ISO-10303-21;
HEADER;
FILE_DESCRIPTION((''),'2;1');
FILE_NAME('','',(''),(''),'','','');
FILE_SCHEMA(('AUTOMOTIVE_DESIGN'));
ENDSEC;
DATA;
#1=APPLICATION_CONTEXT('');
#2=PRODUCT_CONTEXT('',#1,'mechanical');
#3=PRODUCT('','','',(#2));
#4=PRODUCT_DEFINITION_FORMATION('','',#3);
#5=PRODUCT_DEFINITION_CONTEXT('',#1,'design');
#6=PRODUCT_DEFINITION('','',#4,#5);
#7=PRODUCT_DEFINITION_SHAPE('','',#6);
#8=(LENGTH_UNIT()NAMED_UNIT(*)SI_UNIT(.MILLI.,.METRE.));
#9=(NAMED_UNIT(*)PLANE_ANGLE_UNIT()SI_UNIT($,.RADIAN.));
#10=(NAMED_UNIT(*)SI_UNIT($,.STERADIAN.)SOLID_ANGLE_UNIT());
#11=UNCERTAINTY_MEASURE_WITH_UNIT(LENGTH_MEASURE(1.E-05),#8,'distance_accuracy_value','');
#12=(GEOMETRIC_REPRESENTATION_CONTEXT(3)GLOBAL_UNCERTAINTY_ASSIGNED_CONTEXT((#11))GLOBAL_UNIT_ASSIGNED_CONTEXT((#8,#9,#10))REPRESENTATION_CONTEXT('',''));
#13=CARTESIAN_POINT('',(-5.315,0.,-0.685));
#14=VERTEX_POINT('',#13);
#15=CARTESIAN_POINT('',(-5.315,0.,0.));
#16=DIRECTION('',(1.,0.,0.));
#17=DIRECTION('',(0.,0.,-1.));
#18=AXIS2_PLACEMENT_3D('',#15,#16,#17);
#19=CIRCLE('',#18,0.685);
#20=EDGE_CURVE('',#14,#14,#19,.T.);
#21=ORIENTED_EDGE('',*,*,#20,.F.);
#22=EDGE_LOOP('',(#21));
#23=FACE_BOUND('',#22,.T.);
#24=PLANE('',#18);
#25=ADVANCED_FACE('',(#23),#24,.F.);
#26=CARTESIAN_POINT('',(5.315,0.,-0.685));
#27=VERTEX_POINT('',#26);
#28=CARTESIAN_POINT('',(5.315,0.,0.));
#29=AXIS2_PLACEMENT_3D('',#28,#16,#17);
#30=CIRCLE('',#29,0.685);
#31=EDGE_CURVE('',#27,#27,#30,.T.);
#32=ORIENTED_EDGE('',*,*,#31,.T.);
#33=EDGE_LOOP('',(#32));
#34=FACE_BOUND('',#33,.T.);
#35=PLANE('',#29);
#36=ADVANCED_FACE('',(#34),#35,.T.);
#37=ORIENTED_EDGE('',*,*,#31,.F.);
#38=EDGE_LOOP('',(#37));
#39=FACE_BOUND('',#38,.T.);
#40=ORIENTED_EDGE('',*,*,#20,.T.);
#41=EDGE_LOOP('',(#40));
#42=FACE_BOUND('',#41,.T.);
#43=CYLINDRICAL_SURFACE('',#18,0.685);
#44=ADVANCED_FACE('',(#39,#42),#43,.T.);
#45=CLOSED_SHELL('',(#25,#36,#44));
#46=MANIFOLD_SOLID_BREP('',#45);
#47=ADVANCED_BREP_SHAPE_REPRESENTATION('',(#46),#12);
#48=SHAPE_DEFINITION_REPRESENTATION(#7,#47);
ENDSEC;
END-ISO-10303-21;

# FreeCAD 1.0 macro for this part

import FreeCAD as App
import Part
import Sketcher
from FreeCAD import Vector
Q = App.Units.Quantity

doc = App.newDocument("Part")
body = doc.addObject("PartDesign::Body", "Body")

# Sketch on YZ plane
sketch1 = body.newObject("Sketcher::SketchObject", "Sketch")
sketch1.AttachmentSupport = (doc.getObject("YZ_Plane"), [""])
sketch1.MapMode = "FlatFace"
sketch1.addGeometry(Part.Circle(Vector(0, 0, 0), Vector(0, 0, 1), 0.685), False)
sketch1.addConstraint(Sketcher.Constraint("Coincident", 0, 3, -1, 1))
sketch1.addConstraint(Sketcher.Constraint("Diameter", 0, Q("1.37 mm")))
pad1 = body.newObject("PartDesign::Pad", "Pad")
pad1.Profile = sketch1
pad1.Type = "TwoLengths"
pad1.Length = 5.315
pad1.Length2 = 5.315

doc.recompute()
